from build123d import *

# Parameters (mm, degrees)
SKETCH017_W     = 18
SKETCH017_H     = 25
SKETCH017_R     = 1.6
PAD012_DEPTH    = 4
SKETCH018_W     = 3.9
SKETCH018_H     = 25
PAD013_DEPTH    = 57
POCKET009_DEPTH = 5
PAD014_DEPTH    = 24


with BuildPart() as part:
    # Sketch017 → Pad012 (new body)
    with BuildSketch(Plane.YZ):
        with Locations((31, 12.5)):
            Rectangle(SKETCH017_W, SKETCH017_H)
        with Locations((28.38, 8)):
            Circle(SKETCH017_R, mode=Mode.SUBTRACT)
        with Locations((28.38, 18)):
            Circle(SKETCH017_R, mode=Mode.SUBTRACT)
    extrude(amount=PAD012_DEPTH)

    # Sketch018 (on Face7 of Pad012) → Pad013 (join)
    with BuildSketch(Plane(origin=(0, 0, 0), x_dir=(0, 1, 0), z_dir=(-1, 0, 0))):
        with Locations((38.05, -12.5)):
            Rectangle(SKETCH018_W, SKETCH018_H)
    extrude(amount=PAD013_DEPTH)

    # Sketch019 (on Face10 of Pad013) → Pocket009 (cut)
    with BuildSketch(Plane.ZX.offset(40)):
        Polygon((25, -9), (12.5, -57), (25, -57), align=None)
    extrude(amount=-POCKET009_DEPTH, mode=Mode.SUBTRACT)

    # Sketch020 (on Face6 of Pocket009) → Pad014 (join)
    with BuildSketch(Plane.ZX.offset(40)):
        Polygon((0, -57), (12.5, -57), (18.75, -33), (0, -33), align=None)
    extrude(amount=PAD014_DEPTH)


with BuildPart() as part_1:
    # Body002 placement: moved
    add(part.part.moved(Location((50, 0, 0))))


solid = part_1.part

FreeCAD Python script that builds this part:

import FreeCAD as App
import Part
import Sketcher
Q = App.Units.Quantity


def add_polygon(sketch, points):
    """Adds a closed chain of lines whose ends are joined by coincident constraints."""
    first, n = sketch.GeometryCount, len(points)
    for a, b in zip(points, points[1:] + points[:1]):
        sketch.addGeometry(Part.LineSegment(App.Vector(*a, 0), App.Vector(*b, 0)), False)
    for i in range(n):
        sketch.addConstraint(Sketcher.Constraint("Coincident", first + i, 2, first + (i + 1) % n, 1))

doc = App.newDocument("Part")
body = doc.addObject("PartDesign::Body", "Body")

# Sketch on YZ plane
sketch1 = doc.addObject("Sketcher::SketchObject", "Sketch")
body.addObject(sketch1)
sketch1.AttachmentSupport = (doc.YZ_Plane, [""])
sketch1.MapMode = "FlatFace"
add_polygon(sketch1, [(22, 25), (22, 0), (40, 0), (40, 25)])  # lines 0-3
sketch1.addGeometry(Part.Circle(App.Vector(28.4, 8, 0), App.Vector(0, 0, 1), 1.6), False)  # 4
sketch1.addGeometry(Part.Circle(App.Vector(28.4, 18, 0), App.Vector(0, 0, 1), 1.6), False)  # 5
sketch1.addConstraint([
    Sketcher.Constraint("Vertical", 0),
    Sketcher.Constraint("Horizontal", 1),
    Sketcher.Constraint("Vertical", 2),
    Sketcher.Constraint("Horizontal", 3),
    Sketcher.Constraint("Equal", 4, 5),
    Sketcher.Constraint("PointOnObject", 0, 2, -1),
    Sketcher.Constraint("Vertical", 4, 3, 5, 3),
    Sketcher.Constraint("Diameter", 4, Q("3.2 mm")),
    Sketcher.Constraint("DistanceX", 1, 1, 1, 2, Q("18 mm")),
    Sketcher.Constraint("DistanceY", 0, 2, 0, 1, Q("25 mm")),
    Sketcher.Constraint("DistanceY", -1, 1, 4, 3, Q("8 mm")),
    Sketcher.Constraint("DistanceY", -1, 1, 5, 3, Q("18 mm")),
    Sketcher.Constraint("DistanceX", -1, 1, 0, 2, Q("22 mm")),
    Sketcher.Constraint("DistanceX", -1, 1, 4, 3, Q("28.38 mm")),
])
pad1 = doc.addObject("PartDesign::Pad", "Pad")
body.addObject(pad1)
pad1.Profile = sketch1
pad1.Length = 4

# Sketch on YZ plane
sketch2 = doc.addObject("Sketcher::SketchObject", "Sketch001")
body.addObject(sketch2)
sketch2.AttachmentSupport = (doc.YZ_Plane, [""])
sketch2.MapMode = "FlatFace"
add_polygon(sketch2, [(36.1, 0), (36.1, 25), (40, 25), (40, 0)])  # lines 0-3
sketch2.addConstraint([
    Sketcher.Constraint("Vertical", 0),
    Sketcher.Constraint("Horizontal", 1),
    Sketcher.Constraint("Vertical", 2),
    Sketcher.Constraint("Horizontal", 3),
    Sketcher.Constraint("PointOnObject", 2, 2, -1),
    Sketcher.Constraint("DistanceY", 0, 1, 0, 2, Q("25 mm")),
    Sketcher.Constraint("DistanceX", 1, 1, 1, 2, Q("3.9 mm")),
    Sketcher.Constraint("DistanceX", -1, 1, 1, 2, Q("40 mm")),
])
pad2 = doc.addObject("PartDesign::Pad", "Pad001")
body.addObject(pad2)
pad2.Profile = sketch2
pad2.Length = 57
pad2.Reversed = True

# Sketch on XZ plane
sketch3 = doc.addObject("Sketcher::SketchObject", "Sketch002")
body.addObject(sketch3)
sketch3.AttachmentSupport = (doc.XZ_Plane, [""])
sketch3.MapMode = "FlatFace"
sketch3.AttachmentOffset = App.Placement(App.Vector(0, 0, -40), App.Rotation())
add_polygon(sketch3, [(-9, 25), (-57, 12), (-57, 25)])  # lines 0-2
sketch3.addConstraint([
    Sketcher.Constraint("Vertical", 1),
    Sketcher.Constraint("Horizontal", 2),
    Sketcher.Constraint("DistanceX", 2, 1, 2, 2, Q("48 mm")),
    Sketcher.Constraint("DistanceY", 1, 1, 1, 2, Q("12.5 mm")),
    Sketcher.Constraint("DistanceX", 0, 2, -1, 1, Q("57 mm")),
    Sketcher.Constraint("DistanceY", -1, 1, 1, 2, Q("25 mm")),
])
pocket1 = doc.addObject("PartDesign::Pocket", "Pocket")
body.addObject(pocket1)
pocket1.Profile = sketch3
pocket1.Length = 5
pocket1.Reversed = True

# Sketch on XZ plane
sketch4 = doc.addObject("Sketcher::SketchObject", "Sketch003")
body.addObject(sketch4)
sketch4.AttachmentSupport = (doc.XZ_Plane, [""])
sketch4.MapMode = "FlatFace"
sketch4.AttachmentOffset = App.Placement(App.Vector(0, 0, -40), App.Rotation())
add_polygon(sketch4, [(-57, 0), (-57, 12), (-33, 19), (-33, 0)])  # lines 0-3
sketch4.addConstraint([
    Sketcher.Constraint("Vertical", 0),
    Sketcher.Constraint("Vertical", 2),
    Sketcher.Constraint("Horizontal", 3),
    Sketcher.Constraint("PointOnObject", 2, 2, -1),
    Sketcher.Constraint("DistanceX", 3, 2, 3, 1, Q("24 mm")),
    Sketcher.Constraint("DistanceY", 0, 1, 0, 2, Q("12.5 mm")),
    Sketcher.Constraint("DistanceX", 0, 2, -1, 1, Q("57 mm")),
    Sketcher.Constraint("DistanceY", 2, 2, 2, 1, Q("18.75 mm")),
])
pad3 = doc.addObject("PartDesign::Pad", "Pad002")
body.addObject(pad3)
pad3.Profile = sketch4
pad3.Length = 24
pad3.Reversed = True
body2 = doc.addObject("PartDesign::Body", "Body001")
doc.recompute()

body.Placement = App.Placement(App.Vector(50, 0, 0), App.Rotation(App.Vector(0, 0, 1), 0))
boolean = doc.addObject("PartDesign::Boolean", "Boolean")
body2.addObject(boolean)
boolean.Type = "Fuse"
boolean.addObjects([body])

doc.recompute()
